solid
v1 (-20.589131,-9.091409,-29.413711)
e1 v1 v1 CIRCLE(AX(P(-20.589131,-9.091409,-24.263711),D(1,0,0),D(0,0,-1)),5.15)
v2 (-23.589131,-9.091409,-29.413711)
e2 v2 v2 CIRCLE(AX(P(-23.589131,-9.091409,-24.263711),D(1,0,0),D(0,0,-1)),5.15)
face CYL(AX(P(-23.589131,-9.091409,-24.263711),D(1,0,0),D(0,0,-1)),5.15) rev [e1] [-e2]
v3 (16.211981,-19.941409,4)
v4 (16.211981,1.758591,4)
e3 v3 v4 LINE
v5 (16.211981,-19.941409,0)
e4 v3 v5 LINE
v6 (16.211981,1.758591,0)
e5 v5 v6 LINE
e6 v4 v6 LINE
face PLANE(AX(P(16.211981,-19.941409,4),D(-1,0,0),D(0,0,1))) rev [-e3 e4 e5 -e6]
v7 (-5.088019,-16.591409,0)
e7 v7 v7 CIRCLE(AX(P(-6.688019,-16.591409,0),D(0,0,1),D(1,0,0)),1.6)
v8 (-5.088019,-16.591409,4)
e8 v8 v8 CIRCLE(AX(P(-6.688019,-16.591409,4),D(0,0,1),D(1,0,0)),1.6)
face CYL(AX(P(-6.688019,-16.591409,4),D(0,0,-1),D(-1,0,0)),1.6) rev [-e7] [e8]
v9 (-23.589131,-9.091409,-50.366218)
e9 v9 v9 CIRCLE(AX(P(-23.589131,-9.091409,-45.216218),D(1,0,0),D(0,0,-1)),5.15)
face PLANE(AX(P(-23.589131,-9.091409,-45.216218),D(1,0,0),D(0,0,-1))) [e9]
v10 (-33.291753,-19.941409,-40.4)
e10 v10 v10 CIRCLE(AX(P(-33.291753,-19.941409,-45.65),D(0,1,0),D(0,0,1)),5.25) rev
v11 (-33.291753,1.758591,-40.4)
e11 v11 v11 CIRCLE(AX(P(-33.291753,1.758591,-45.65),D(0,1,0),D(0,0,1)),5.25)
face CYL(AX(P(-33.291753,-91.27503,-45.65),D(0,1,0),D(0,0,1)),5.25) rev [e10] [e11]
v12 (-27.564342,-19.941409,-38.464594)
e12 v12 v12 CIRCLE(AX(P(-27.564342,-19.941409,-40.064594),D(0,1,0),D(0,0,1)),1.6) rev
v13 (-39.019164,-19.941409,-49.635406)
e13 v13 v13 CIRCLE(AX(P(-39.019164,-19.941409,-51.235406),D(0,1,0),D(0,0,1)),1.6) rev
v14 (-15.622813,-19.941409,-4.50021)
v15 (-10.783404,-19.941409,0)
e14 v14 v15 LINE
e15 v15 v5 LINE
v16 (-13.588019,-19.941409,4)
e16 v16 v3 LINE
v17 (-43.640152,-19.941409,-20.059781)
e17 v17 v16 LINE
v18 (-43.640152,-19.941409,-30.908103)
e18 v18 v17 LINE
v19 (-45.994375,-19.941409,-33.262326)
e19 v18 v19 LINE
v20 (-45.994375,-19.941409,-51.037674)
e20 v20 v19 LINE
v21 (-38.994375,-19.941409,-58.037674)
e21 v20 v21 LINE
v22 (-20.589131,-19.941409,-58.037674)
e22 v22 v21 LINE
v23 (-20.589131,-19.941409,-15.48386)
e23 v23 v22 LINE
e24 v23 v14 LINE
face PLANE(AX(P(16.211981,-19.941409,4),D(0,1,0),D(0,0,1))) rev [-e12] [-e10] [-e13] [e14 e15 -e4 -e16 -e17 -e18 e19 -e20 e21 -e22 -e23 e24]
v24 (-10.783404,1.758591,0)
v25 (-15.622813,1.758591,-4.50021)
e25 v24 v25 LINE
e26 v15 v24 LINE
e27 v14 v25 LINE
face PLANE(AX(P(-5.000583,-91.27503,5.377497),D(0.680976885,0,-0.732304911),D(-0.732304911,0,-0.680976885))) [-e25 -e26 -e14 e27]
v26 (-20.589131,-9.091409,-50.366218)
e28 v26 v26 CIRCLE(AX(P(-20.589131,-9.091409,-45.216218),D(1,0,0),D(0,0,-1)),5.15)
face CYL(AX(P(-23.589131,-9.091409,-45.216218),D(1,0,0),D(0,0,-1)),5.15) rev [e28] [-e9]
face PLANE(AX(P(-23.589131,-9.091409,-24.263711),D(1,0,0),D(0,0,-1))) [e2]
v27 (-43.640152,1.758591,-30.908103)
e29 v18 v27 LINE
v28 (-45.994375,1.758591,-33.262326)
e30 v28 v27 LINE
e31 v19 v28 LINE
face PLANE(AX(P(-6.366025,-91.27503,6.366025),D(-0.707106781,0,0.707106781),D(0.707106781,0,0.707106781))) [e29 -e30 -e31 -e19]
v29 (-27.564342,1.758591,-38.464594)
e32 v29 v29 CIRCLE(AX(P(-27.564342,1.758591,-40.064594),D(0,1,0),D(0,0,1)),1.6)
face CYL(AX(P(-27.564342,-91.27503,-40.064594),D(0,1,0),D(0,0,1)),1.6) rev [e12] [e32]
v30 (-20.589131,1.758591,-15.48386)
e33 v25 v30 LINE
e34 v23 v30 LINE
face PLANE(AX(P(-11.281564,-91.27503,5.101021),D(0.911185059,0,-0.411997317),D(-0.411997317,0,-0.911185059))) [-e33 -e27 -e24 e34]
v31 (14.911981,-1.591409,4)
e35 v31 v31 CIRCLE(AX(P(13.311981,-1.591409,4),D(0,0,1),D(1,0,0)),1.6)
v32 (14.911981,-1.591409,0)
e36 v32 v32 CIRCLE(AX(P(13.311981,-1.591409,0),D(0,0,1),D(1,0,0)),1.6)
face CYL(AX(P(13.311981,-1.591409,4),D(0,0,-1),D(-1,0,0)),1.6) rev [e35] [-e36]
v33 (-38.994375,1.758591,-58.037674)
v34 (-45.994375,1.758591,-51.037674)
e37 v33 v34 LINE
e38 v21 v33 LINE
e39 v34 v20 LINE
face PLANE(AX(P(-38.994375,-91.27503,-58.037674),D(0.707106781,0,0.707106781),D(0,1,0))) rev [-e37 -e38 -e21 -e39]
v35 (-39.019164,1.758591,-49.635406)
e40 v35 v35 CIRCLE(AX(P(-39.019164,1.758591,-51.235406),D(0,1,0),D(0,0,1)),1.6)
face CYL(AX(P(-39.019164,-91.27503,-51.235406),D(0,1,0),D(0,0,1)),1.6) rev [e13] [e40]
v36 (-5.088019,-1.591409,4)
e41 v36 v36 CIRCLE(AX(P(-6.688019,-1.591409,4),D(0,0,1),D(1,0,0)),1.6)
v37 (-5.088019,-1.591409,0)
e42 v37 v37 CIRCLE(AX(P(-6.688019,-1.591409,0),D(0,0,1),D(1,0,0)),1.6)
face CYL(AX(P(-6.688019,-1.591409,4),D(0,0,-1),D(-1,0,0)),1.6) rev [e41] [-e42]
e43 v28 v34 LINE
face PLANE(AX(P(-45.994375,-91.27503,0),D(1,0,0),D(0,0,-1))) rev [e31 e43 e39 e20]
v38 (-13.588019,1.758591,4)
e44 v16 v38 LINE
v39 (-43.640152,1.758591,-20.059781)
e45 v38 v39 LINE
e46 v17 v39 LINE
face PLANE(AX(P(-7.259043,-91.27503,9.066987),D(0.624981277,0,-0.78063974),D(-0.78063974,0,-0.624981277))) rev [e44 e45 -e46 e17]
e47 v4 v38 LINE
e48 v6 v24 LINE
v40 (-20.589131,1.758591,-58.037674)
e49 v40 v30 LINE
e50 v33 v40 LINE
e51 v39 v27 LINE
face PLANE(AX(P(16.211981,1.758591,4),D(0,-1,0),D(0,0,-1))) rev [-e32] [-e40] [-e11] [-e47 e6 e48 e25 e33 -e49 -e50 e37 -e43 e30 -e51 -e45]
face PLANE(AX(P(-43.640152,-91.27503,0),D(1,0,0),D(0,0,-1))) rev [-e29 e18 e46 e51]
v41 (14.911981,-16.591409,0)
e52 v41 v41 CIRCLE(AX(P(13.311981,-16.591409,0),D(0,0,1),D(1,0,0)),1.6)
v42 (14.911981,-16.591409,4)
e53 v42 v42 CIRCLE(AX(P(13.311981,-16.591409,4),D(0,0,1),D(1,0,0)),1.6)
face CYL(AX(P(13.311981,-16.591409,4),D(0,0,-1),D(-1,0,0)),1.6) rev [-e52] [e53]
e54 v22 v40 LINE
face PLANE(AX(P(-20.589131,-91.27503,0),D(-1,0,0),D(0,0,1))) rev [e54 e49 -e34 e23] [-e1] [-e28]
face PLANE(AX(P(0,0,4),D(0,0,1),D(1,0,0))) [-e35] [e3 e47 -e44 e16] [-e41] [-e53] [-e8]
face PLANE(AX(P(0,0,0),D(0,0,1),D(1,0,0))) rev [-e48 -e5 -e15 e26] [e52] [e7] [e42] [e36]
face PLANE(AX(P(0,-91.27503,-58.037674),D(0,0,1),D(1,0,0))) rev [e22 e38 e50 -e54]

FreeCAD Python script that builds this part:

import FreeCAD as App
import Part
import Sketcher

V = App.Vector
Q = App.Units.Quantity


def edges_at(feature, points):
    """Names of the edges that pass closest to the given points."""
    edges = feature.Shape.Edges
    near = lambda p: min(range(len(edges)), key=lambda i: edges[i].distToShape(Part.Vertex(*p))[0])
    return sorted({f"Edge{near(p) + 1}" for p in points})

doc = App.newDocument("Part")
body = doc.addObject("PartDesign::Body", "Body")

# Sketch on XY plane
sketch1 = body.newObject("Sketcher::SketchObject", "Sketch")
sketch1.AttachmentSupport = (doc.getObject("XY_Plane"), [""])
sketch1.MapMode = "FlatFace"
sketch1.addGeometry([
    Part.LineSegment(V(-9.6, 1.8, 0), V(-9.6, -19.9, 0)),  # 0
    Part.LineSegment(V(-9.6, -19.9, 0), V(16.2, -19.9, 0)),  # 1
    Part.LineSegment(V(16.2, -19.9, 0), V(16.2, 1.8, 0)),  # 2
    Part.LineSegment(V(16.2, 1.8, 0), V(-9.6, 1.8, 0)),  # 3
    Part.Circle(V(-6.7, -16.6, 0), V(0, 0, 1), 1.6),  # 4
    Part.Circle(V(13.3, -16.6, 0), V(0, 0, 1), 1.6),  # 5
    Part.Circle(V(-6.7, -1.6, 0), V(0, 0, 1), 1.6),  # 6
    Part.Circle(V(13.3, -1.6, 0), V(0, 0, 1), 1.6),  # 7
], False)
sketch1.addConstraint([
    Sketcher.Constraint("Coincident", 0, 2, 1, 1),
    Sketcher.Constraint("Coincident", 1, 2, 2, 1),
    Sketcher.Constraint("Coincident", 2, 2, 3, 1),
    Sketcher.Constraint("Coincident", 3, 2, 0, 1),
    Sketcher.Constraint("Vertical", 0),
    Sketcher.Constraint("Horizontal", 1),
    Sketcher.Constraint("Vertical", 2),
    Sketcher.Constraint("Horizontal", 3),
    Sketcher.Constraint("Equal", 4, 5),
    Sketcher.Constraint("Equal", 5, 6),
    Sketcher.Constraint("Equal", 6, 7),
    Sketcher.Constraint("Horizontal", 4, 3, 5, 3),
    Sketcher.Constraint("Horizontal", 6, 3, 7, 3),
    Sketcher.Constraint("Vertical", 4, 3, 6, 3),
    Sketcher.Constraint("Vertical", 5, 3, 7, 3),
    Sketcher.Constraint("Diameter", 4, Q("3.2 mm")),
    Sketcher.Constraint("DistanceX", 1, 1, 1, 2, Q("25.8 mm")),
    Sketcher.Constraint("DistanceY", 0, 2, 0, 1, Q("21.7 mm")),
    Sketcher.Constraint("DistanceX", 4, 3, 5, 3, Q("20 mm")),
    Sketcher.Constraint("DistanceY", 4, 3, 6, 3, Q("15 mm")),
    Sketcher.Constraint("DistanceX", 0, 2, 4, 3, Q("2.9 mm")),
    Sketcher.Constraint("DistanceY", 0, 2, 4, 3, Q("3.35 mm")),
    Sketcher.Constraint("DistanceX", 4, 3, -1, 1, Q("6.688019 mm")),
    Sketcher.Constraint("DistanceY", 4, 3, -1, 1, Q("16.591409 mm")),
])
pad1 = body.newObject("PartDesign::Pad", "Pad")
pad1.Profile = sketch1
pad1.Length = 4

# Sketch on YZ plane
sketch2 = body.newObject("Sketcher::SketchObject", "Sketch001")
sketch2.AttachmentSupport = (doc.getObject("YZ_Plane"), [""])
sketch2.MapMode = "FlatFace"
sketch2.AttachmentOffset = App.Placement(V(0, 0, -9.588019), App.Rotation())
sketch2.addGeometry([
    Part.LineSegment(V(1.8, 0, 0), V(-19.9, 0, 0)),
    Part.LineSegment(V(-19.9, 0, 0), V(-19.9, 4, 0)),
    Part.LineSegment(V(-19.9, 4, 0), V(1.8, 4, 0)),
    Part.LineSegment(V(1.8, 4, 0), V(1.8, 0, 0)),
], False)
sketch2.addConstraint([
    Sketcher.Constraint("Coincident", 0, 2, 1, 1),
    Sketcher.Constraint("Coincident", 1, 2, 2, 1),
    Sketcher.Constraint("Coincident", 2, 2, 3, 1),
    Sketcher.Constraint("Coincident", 3, 2, 0, 1),
    Sketcher.Constraint("Horizontal", 0),
    Sketcher.Constraint("Vertical", 1),
    Sketcher.Constraint("Horizontal", 2),
    Sketcher.Constraint("Vertical", 3),
    Sketcher.Constraint("PointOnObject", 0, 2, -1),
    Sketcher.Constraint("DistanceY", 1, 1, 1, 2, Q("4 mm")),
    Sketcher.Constraint("DistanceX", 0, 2, 0, 1, Q("21.7 mm")),
    Sketcher.Constraint("DistanceX", 0, 2, -1, 1, Q("19.941409 mm")),
])
pad2 = body.newObject("PartDesign::Pad", "Pad001")
pad2.Profile = sketch2
pad2.Length = 4
pad2.Reversed = True

# Sketch on XZ plane
sketch3 = body.newObject("Sketcher::SketchObject", "Sketch002")
sketch3.AttachmentSupport = (doc.getObject("XZ_Plane"), [""])
sketch3.MapMode = "FlatFace"
sketch3.AttachmentOffset = App.Placement(V(0, 0, -1.758591), App.Rotation())
sketch3.addGeometry([
    Part.LineSegment(V(-13.6, 4, 0), V(-13.6, 0, 0)),  # 0
    Part.LineSegment(V(-13.6, 0, 0), V(-10.8, 0, 0)),  # 1
    Part.LineSegment(V(-10.8, 0, 0), V(-15.6, -4.5, 0)),  # 2
    Part.LineSegment(V(-15.6, -4.5, 0), V(-20.6, -15.5, 0)),  # 3
    Part.LineSegment(V(-20.6, -15.5, 0), V(-20.6, -58, 0)),  # 4
    Part.LineSegment(V(-20.6, -58, 0), V(-46, -58, 0)),  # 5
    Part.LineSegment(V(-46, -58, 0), V(-46, -33.3, 0)),  # 6
    Part.LineSegment(V(-46, -33.3, 0), V(-43.6, -30.9, 0)),  # 7
    Part.LineSegment(V(-43.6, -30.9, 0), V(-43.6, -20.1, 0)),  # 8
    Part.LineSegment(V(-43.6, -20.1, 0), V(-13.6, 4, 0)),  # 9
    Part.Circle(V(-27.6, -40.1, 0), V(0, 0, 1), 1.6),  # 10
    Part.Circle(V(-39, -51.2, 0), V(0, 0, 1), 1.6),  # 11
    Part.Circle(V(-33.3, -45.6, 0), V(0, 0, 1), 5.2),  # 12
], False)
sketch3.addConstraint([
    Sketcher.Constraint("Coincident", 0, 2, 1, 1),
    Sketcher.Constraint("Coincident", 1, 2, 2, 1),
    Sketcher.Constraint("Coincident", 2, 2, 3, 1),
    Sketcher.Constraint("Coincident", 3, 2, 4, 1),
    Sketcher.Constraint("Coincident", 4, 2, 5, 1),
    Sketcher.Constraint("Coincident", 5, 2, 6, 1),
    Sketcher.Constraint("Coincident", 6, 2, 7, 1),
    Sketcher.Constraint("Coincident", 7, 2, 8, 1),
    Sketcher.Constraint("Coincident", 8, 2, 9, 1),
    Sketcher.Constraint("Coincident", 9, 2, 0, 1),
    Sketcher.Constraint("Vertical", 0),
    Sketcher.Constraint("Horizontal", 1),
    Sketcher.Constraint("Vertical", 4),
    Sketcher.Constraint("Horizontal", 5),
    Sketcher.Constraint("Vertical", 6),
    Sketcher.Constraint("Vertical", 8),
    Sketcher.Constraint("Equal", 10, 11),
    Sketcher.Constraint("PointOnObject", 0, 2, -1),
    Sketcher.Constraint("Diameter", 10, Q("3.2 mm")),
    Sketcher.Constraint("Diameter", 12, Q("10.5 mm")),
    Sketcher.Constraint("DistanceY", 0, 2, 0, 1, Q("4 mm")),
    Sketcher.Constraint("Angle", 7, Q("45 deg")),
    Sketcher.Constraint("DistanceY", 12, 3, -1, 1, Q("45.65 mm")),
    Sketcher.Constraint("DistanceY", 6, 1, 6, 2, Q("24.775348 mm")),
    Sketcher.Constraint("DistanceX", 7, 2, 12, 3, Q("10.348399 mm")),
    Sketcher.Constraint("Distance", 2, Q("6.608462 mm")),
    Sketcher.Constraint("Distance", 3, Q("12.054248 mm")),
    Sketcher.Constraint("DistanceX", 1, 1, 1, 2, Q("2.804614 mm")),
    Sketcher.Constraint("DistanceX", 5, 2, 5, 1, Q("25.405244 mm")),
    Sketcher.Constraint("DistanceY", 4, 2, 4, 1, Q("42.553814 mm")),
    Sketcher.Constraint("DistanceY", 8, 1, 8, 2, Q("10.848323 mm")),
    Sketcher.Constraint("DistanceX", 10, 3, -1, 1, Q("27.564342 mm")),
    Sketcher.Constraint("DistanceX", 0, 2, -1, 1, Q("13.588019 mm")),
    Sketcher.Constraint("DistanceY", 2, 2, -1, 1, Q("4.50021 mm")),
    Sketcher.Constraint("DistanceX", 3, 2, -1, 1, Q("20.589131 mm")),
    Sketcher.Constraint("DistanceY", 8, 2, -1, 1, Q("20.059781 mm")),
    Sketcher.Constraint("DistanceX", 11, 3, 12, 3, Q("5.727411 mm")),
    Sketcher.Constraint("DistanceY", 4, 2, 10, 3, Q("17.97308 mm")),
    Sketcher.Constraint("DistanceY", 11, 3, 6, 2, Q("17.97308 mm")),
])
pad3 = body.newObject("PartDesign::Pad", "Pad002")
pad3.Profile = sketch3
pad3.Length = 21.7
doc.recompute()

chamfer = body.newObject("PartDesign::Chamfer", "Chamfer")
chamfer.Base = (pad3, edges_at(pad3, [(-45.994, -9.091, -58.038)]))
chamfer.Size = 7

# Sketch on YZ plane
sketch4 = body.newObject("Sketcher::SketchObject", "Sketch003")
sketch4.AttachmentSupport = (doc.getObject("YZ_Plane"), [""])
sketch4.MapMode = "FlatFace"
sketch4.AttachmentOffset = App.Placement(V(0, 0, -20.589131), App.Rotation())
sketch4.addGeometry([
    Part.Circle(V(-9, -24, 0), V(0, 0, 1), 5),
    Part.Circle(V(-9, -45, 0), V(0, 0, 1), 5),
], False)
sketch4.addConstraint([
    Sketcher.Constraint("Equal", 0, 1),
    Sketcher.Constraint("Vertical", 0, 3, 1, 3),
    Sketcher.Constraint("Diameter", 0, Q("10.3 mm")),
    Sketcher.Constraint("DistanceX", 0, 3, -1, 1, Q("9.091409 mm")),
    Sketcher.Constraint("DistanceY", 0, 3, -1, 1, Q("24.263711 mm")),
    Sketcher.Constraint("DistanceY", 1, 3, -1, 1, Q("45.216218 mm")),
])
pocket1 = body.newObject("PartDesign::Pocket", "Pocket")
pocket1.Profile = sketch4
pocket1.Length = 3

doc.recompute()
